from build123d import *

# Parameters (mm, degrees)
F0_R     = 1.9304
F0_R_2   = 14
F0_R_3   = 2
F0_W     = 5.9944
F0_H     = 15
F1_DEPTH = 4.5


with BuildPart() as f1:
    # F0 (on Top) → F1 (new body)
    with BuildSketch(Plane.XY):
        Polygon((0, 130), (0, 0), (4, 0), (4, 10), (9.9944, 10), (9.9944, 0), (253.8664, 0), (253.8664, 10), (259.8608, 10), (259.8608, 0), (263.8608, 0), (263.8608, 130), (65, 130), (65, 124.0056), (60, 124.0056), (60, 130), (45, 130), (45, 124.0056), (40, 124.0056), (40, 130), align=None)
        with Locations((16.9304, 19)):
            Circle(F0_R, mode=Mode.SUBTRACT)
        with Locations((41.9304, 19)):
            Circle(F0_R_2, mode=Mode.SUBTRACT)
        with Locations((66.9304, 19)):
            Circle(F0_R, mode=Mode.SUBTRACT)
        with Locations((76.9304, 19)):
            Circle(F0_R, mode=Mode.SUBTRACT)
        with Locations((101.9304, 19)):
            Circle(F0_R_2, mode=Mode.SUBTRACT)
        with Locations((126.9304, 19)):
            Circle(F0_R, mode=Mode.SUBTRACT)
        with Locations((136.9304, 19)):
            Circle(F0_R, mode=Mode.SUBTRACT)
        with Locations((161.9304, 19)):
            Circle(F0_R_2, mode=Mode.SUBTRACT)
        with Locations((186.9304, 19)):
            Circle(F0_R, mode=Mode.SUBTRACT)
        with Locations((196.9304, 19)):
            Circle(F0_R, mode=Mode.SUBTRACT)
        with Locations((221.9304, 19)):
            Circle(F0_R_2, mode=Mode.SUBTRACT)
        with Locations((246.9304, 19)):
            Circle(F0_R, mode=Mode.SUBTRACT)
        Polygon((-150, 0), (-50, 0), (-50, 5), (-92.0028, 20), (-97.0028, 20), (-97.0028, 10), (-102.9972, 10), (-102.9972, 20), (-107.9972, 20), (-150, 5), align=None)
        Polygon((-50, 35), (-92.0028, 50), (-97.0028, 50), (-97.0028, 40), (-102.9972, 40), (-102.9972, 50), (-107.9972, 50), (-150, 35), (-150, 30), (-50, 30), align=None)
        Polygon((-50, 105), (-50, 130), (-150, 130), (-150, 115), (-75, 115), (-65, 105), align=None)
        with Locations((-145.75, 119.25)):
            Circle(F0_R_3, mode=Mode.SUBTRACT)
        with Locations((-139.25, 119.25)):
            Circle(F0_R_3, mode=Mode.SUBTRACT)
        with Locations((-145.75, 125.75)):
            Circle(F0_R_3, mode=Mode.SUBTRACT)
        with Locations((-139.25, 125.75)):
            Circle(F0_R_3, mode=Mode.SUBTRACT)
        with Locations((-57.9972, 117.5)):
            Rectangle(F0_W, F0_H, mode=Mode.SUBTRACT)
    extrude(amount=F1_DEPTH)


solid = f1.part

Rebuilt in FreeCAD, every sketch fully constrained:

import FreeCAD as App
import Part
import Sketcher
from FreeCAD import Vector


def add_polygon(sketch, points):
    """Adds a closed chain of lines whose ends are joined by coincident constraints."""
    first, n = sketch.GeometryCount, len(points)
    for a, b in zip(points, points[1:] + points[:1]):
        sketch.addGeometry(Part.LineSegment(App.Vector(*a, 0), App.Vector(*b, 0)), False)
    for i in range(n):
        sketch.addConstraint(Sketcher.Constraint("Coincident", first + i, 2, first + (i + 1) % n, 1))

doc = App.newDocument("Part")
body = doc.addObject("PartDesign::Body", "Body")
body.AllowCompound = True

# Sketch on XY plane
sketch1 = doc.addObject("Sketcher::SketchObject", "Sketch")
body.addObject(sketch1)
sketch1.AttachmentSupport = (doc.XY_Plane, [""])
sketch1.MapMode = "FlatFace"
add_polygon(sketch1, [(0, 130), (0, 0), (4, 0), (4, 10), (10, 10), (10, 0), (253.9, 0), (253.9, 10), (259.9, 10), (259.9, 0), (263.9, 0), (263.9, 130), (65, 130), (65, 124), (60, 124), (60, 130), (45, 130), (45, 124), (40, 124), (40, 130)])  # lines 0-19
sketch1.addGeometry(Part.Circle(Vector(16.9, 19, 0), Vector(0, 0, 1), 1.9), False)  # 20
sketch1.addGeometry(Part.Circle(Vector(41.9, 19, 0), Vector(0, 0, 1), 14), False)  # 21
sketch1.addGeometry(Part.Circle(Vector(66.9, 19, 0), Vector(0, 0, 1), 1.9), False)  # 22
sketch1.addGeometry(Part.Circle(Vector(76.9, 19, 0), Vector(0, 0, 1), 1.9), False)  # 23
sketch1.addGeometry(Part.Circle(Vector(101.9, 19, 0), Vector(0, 0, 1), 14), False)  # 24
sketch1.addGeometry(Part.Circle(Vector(126.9, 19, 0), Vector(0, 0, 1), 1.9), False)  # 25
sketch1.addGeometry(Part.Circle(Vector(136.9, 19, 0), Vector(0, 0, 1), 1.9), False)  # 26
sketch1.addGeometry(Part.Circle(Vector(161.9, 19, 0), Vector(0, 0, 1), 14), False)  # 27
sketch1.addGeometry(Part.Circle(Vector(186.9, 19, 0), Vector(0, 0, 1), 1.9), False)  # 28
sketch1.addGeometry(Part.Circle(Vector(196.9, 19, 0), Vector(0, 0, 1), 1.9), False)  # 29
sketch1.addGeometry(Part.Circle(Vector(221.9, 19, 0), Vector(0, 0, 1), 14), False)  # 30
sketch1.addGeometry(Part.Circle(Vector(246.9, 19, 0), Vector(0, 0, 1), 1.9), False)  # 31
add_polygon(sketch1, [(-150, 0), (-50, 0), (-50, 5), (-92, 20), (-97, 20), (-97, 10), (-103, 10), (-103, 20), (-108, 20), (-150, 5)])  # lines 32-41
add_polygon(sketch1, [(-50, 35), (-92, 50), (-97, 50), (-97, 40), (-103, 40), (-103, 50), (-108, 50), (-150, 35), (-150, 30), (-50, 30)])  # lines 42-51
add_polygon(sketch1, [(-50, 105), (-50, 130), (-150, 130), (-150, 115), (-75, 115), (-65, 105)])  # lines 52-57
add_polygon(sketch1, [(-55, 110), (-61, 110), (-61, 125), (-55, 125)])  # lines 58-61
sketch1.addGeometry(Part.Circle(Vector(-145.8, 119.2, 0), Vector(0, 0, 1), 2), False)  # 62
sketch1.addGeometry(Part.Circle(Vector(-139.2, 119.2, 0), Vector(0, 0, 1), 2), False)  # 63
sketch1.addGeometry(Part.Circle(Vector(-145.8, 125.8, 0), Vector(0, 0, 1), 2), False)  # 64
sketch1.addGeometry(Part.Circle(Vector(-139.2, 125.8, 0), Vector(0, 0, 1), 2), False)  # 65
sketch1.addConstraint(Sketcher.Constraint("Vertical", 0))
sketch1.addConstraint(Sketcher.Constraint("Horizontal", 1))
sketch1.addConstraint(Sketcher.Constraint("Vertical", 2))
sketch1.addConstraint(Sketcher.Constraint("Horizontal", 3))
sketch1.addConstraint(Sketcher.Constraint("Vertical", 4))
sketch1.addConstraint(Sketcher.Constraint("Horizontal", 5))
sketch1.addConstraint(Sketcher.Constraint("Vertical", 6))
sketch1.addConstraint(Sketcher.Constraint("Horizontal", 7))
sketch1.addConstraint(Sketcher.Constraint("Vertical", 8))
sketch1.addConstraint(Sketcher.Constraint("Horizontal", 9))
sketch1.addConstraint(Sketcher.Constraint("Vertical", 10))
sketch1.addConstraint(Sketcher.Constraint("Horizontal", 11))
sketch1.addConstraint(Sketcher.Constraint("Vertical", 12))
sketch1.addConstraint(Sketcher.Constraint("Horizontal", 13))
sketch1.addConstraint(Sketcher.Constraint("Vertical", 14))
sketch1.addConstraint(Sketcher.Constraint("Horizontal", 15))
sketch1.addConstraint(Sketcher.Constraint("Vertical", 16))
sketch1.addConstraint(Sketcher.Constraint("Horizontal", 17))
sketch1.addConstraint(Sketcher.Constraint("Vertical", 18))
sketch1.addConstraint(Sketcher.Constraint("Horizontal", 19))
sketch1.addConstraint(Sketcher.Constraint("Horizontal", 32))
sketch1.addConstraint(Sketcher.Constraint("Vertical", 33))
sketch1.addConstraint(Sketcher.Constraint("Horizontal", 35))
sketch1.addConstraint(Sketcher.Constraint("Vertical", 36))
sketch1.addConstraint(Sketcher.Constraint("Horizontal", 37))
sketch1.addConstraint(Sketcher.Constraint("Vertical", 38))
sketch1.addConstraint(Sketcher.Constraint("Horizontal", 39))
sketch1.addConstraint(Sketcher.Constraint("Vertical", 41))
sketch1.addConstraint(Sketcher.Constraint("Horizontal", 43))
sketch1.addConstraint(Sketcher.Constraint("Vertical", 44))
sketch1.addConstraint(Sketcher.Constraint("Horizontal", 45))
sketch1.addConstraint(Sketcher.Constraint("Vertical", 46))
sketch1.addConstraint(Sketcher.Constraint("Horizontal", 47))
sketch1.addConstraint(Sketcher.Constraint("Vertical", 49))
sketch1.addConstraint(Sketcher.Constraint("Horizontal", 50))
sketch1.addConstraint(Sketcher.Constraint("Vertical", 51))
sketch1.addConstraint(Sketcher.Constraint("Vertical", 52))
sketch1.addConstraint(Sketcher.Constraint("Horizontal", 53))
sketch1.addConstraint(Sketcher.Constraint("Vertical", 54))
sketch1.addConstraint(Sketcher.Constraint("Horizontal", 55))
sketch1.addConstraint(Sketcher.Constraint("Horizontal", 57))
sketch1.addConstraint(Sketcher.Constraint("Horizontal", 58))
sketch1.addConstraint(Sketcher.Constraint("Vertical", 59))
sketch1.addConstraint(Sketcher.Constraint("Horizontal", 60))
sketch1.addConstraint(Sketcher.Constraint("Vertical", 61))
sketch1.addConstraint(Sketcher.Constraint("Coincident", 0, 2, -1, 1))
sketch1.addConstraint(Sketcher.Constraint("Equal", 20, 22))
sketch1.addConstraint(Sketcher.Constraint("Equal", 22, 23))
sketch1.addConstraint(Sketcher.Constraint("Equal", 21, 24))
sketch1.addConstraint(Sketcher.Constraint("Equal", 23, 25))
sketch1.addConstraint(Sketcher.Constraint("Equal", 25, 26))
sketch1.addConstraint(Sketcher.Constraint("Equal", 24, 27))
sketch1.addConstraint(Sketcher.Constraint("Equal", 26, 28))
sketch1.addConstraint(Sketcher.Constraint("Equal", 28, 29))
sketch1.addConstraint(Sketcher.Constraint("Equal", 27, 30))
sketch1.addConstraint(Sketcher.Constraint("Equal", 29, 31))
sketch1.addConstraint(Sketcher.Constraint("Equal", 62, 63))
sketch1.addConstraint(Sketcher.Constraint("Equal", 63, 64))
sketch1.addConstraint(Sketcher.Constraint("Equal", 64, 65))
sketch1.addConstraint(Sketcher.Constraint("PointOnObject", 4, 2, -1))
sketch1.addConstraint(Sketcher.Constraint("PointOnObject", 8, 2, -1))
sketch1.addConstraint(Sketcher.Constraint("PointOnObject", 32, 2, -1))
sketch1.addConstraint(Sketcher.Constraint("Parallel", 34, 42))
sketch1.addConstraint(Sketcher.Constraint("Parallel", 40, 48))
sketch1.addConstraint(Sketcher.Constraint("Horizontal", 20, 3, 21, 3))
sketch1.addConstraint(Sketcher.Constraint("Horizontal", 21, 3, 22, 3))
sketch1.addConstraint(Sketcher.Constraint("Horizontal", 22, 3, 23, 3))
sketch1.addConstraint(Sketcher.Constraint("Horizontal", 23, 3, 24, 3))
sketch1.addConstraint(Sketcher.Constraint("Horizontal", 24, 3, 25, 3))
sketch1.addConstraint(Sketcher.Constraint("Horizontal", 25, 3, 26, 3))
sketch1.addConstraint(Sketcher.Constraint("Horizontal", 26, 3, 27, 3))
sketch1.addConstraint(Sketcher.Constraint("Horizontal", 27, 3, 28, 3))
sketch1.addConstraint(Sketcher.Constraint("Horizontal", 28, 3, 29, 3))
sketch1.addConstraint(Sketcher.Constraint("Horizontal", 29, 3, 30, 3))
sketch1.addConstraint(Sketcher.Constraint("Horizontal", 30, 3, 31, 3))
sketch1.addConstraint(Sketcher.Constraint("Horizontal", 62, 3, 63, 3))
sketch1.addConstraint(Sketcher.Constraint("Horizontal", 64, 3, 65, 3))
sketch1.addConstraint(Sketcher.Constraint("Horizontal", 3, 2, 6, 2))
sketch1.addConstraint(Sketcher.Constraint("Horizontal", 11, 2, 14, 2))
sketch1.addConstraint(Sketcher.Constraint("Horizontal", 13, 2, 16, 2))
sketch1.addConstraint(Sketcher.Constraint("Horizontal", 15, 2, 18, 2))
sketch1.addConstraint(Sketcher.Constraint("Horizontal", 7, 2, 36, 2))
sketch1.addConstraint(Sketcher.Constraint("Horizontal", 35, 2, 38, 2))
sketch1.addConstraint(Sketcher.Constraint("Horizontal", 33, 2, 40, 2))
sketch1.addConstraint(Sketcher.Constraint("Horizontal", 43, 2, 46, 2))
sketch1.addConstraint(Sketcher.Constraint("Horizontal", 48, 2, 51, 2))
sketch1.addConstraint(Sketcher.Constraint("Horizontal", 19, 2, 52, 2))
sketch1.addConstraint(Sketcher.Constraint("Vertical", 62, 3, 64, 3))
sketch1.addConstraint(Sketcher.Constraint("Vertical", 63, 3, 65, 3))
sketch1.addConstraint(Sketcher.Constraint("Vertical", 34, 2, 42, 2))
sketch1.addConstraint(Sketcher.Constraint("Vertical", 36, 2, 43, 2))
sketch1.addConstraint(Sketcher.Constraint("Vertical", 38, 2, 45, 2))
sketch1.addConstraint(Sketcher.Constraint("Vertical", 39, 2, 47, 2))
sketch1.addConstraint(Sketcher.Constraint("Vertical", 41, 2, 48, 2))
sketch1.addConstraint(Sketcher.Constraint("Vertical", 51, 2, 52, 2))
sketch1.addConstraint(Sketcher.Constraint("Vertical", 49, 2, 53, 2))
sketch1.addConstraint(Sketcher.Constraint("Equal", 3, 7))
sketch1.addConstraint(Sketcher.Constraint("Equal", 1, 9))
sketch1.addConstraint(Sketcher.Constraint("Equal", 13, 17))
sketch1.addConstraint(Sketcher.Constraint("Equal", 17, 35))
sketch1.addConstraint(Sketcher.Constraint("Equal", 7, 37))
sketch1.addConstraint(Sketcher.Constraint("Equal", 35, 39))
sketch1.addConstraint(Sketcher.Constraint("Equal", 15, 57))
sketch1.addConstraint(Sketcher.Constraint("Equal", 45, 58))
sketch1.addConstraint(Sketcher.Constraint("Equal", 60, 12))
sketch1.addConstraint(Sketcher.Constraint("Equal", 47, 33))
sketch1.addConstraint(Sketcher.Constraint("Equal", 8, 36))
sketch1.addConstraint(Sketcher.Constraint("Equal", 38, 44))
sketch1.addConstraint(Sketcher.Constraint("Equal", 41, 49))
sketch1.addConstraint(Sketcher.Constraint("Equal", 57, 54))
sketch1.addConstraint(Sketcher.Constraint("Equal", 54, 59))
sketch1.addConstraint(Sketcher.Constraint("Equal", 34, 40))
sketch1.addConstraint(Sketcher.Constraint("Diameter", 21, 28.0))
sketch1.addConstraint(Sketcher.Constraint("Diameter", 62, 4.0))
sketch1.addConstraint(Sketcher.Constraint("DistanceX", 1, 1, 1, 2, 4.0))
sketch1.addConstraint(Sketcher.Constraint("DistanceX", 13, 2, 13, 1, 5.0))
sketch1.addConstraint(Sketcher.Constraint("DistanceX", 15, 2, 15, 1, 15.0))
sketch1.addConstraint(Sketcher.Constraint("DistanceX", 19, 2, 19, 1, 40.0))
sketch1.addConstraint(Sketcher.Constraint("DistanceX", 32, 1, 32, 2, 100.0))
sketch1.addConstraint(Sketcher.Constraint("DistanceX", 55, 1, 55, 2, 75.0))
sketch1.addConstraint(Sketcher.Constraint("DistanceY", 0, 2, 0, 1, 130.0))
sketch1.addConstraint(Sketcher.Constraint("DistanceY", 2, 1, 2, 2, 10.0))
sketch1.addConstraint(Sketcher.Constraint("DistanceY", 52, 1, 52, 2, 25.0))
sketch1.addConstraint(Sketcher.Constraint("DistanceY", -1, 1, 20, 3, 19.0))
sketch1.addConstraint(Sketcher.Constraint("DistanceX", 32, 2, -1, 1, 50.0))
sketch1.addConstraint(Sketcher.Constraint("DistanceY", -1, 1, 42, 2, 50.0))
sketch1.addConstraint(Sketcher.Constraint("DistanceY", -1, 1, 58, 2, 110.0))
sketch1.addConstraint(Sketcher.Constraint("DistanceX", 60, 2, -1, 1, 55.0))
sketch1.addConstraint(Sketcher.Constraint("Diameter", 20, 3.8608))
sketch1.addConstraint(Sketcher.Constraint("DistanceX", 5, 1, 5, 2, 243.872))
sketch1.addConstraint(Sketcher.Constraint("DistanceX", 62, 3, -1, 1, 145.75))
sketch1.addConstraint(Sketcher.Constraint("DistanceY", -1, 1, 62, 3, 119.25))
sketch1.addConstraint(Sketcher.Constraint("DistanceX", 63, 3, -1, 1, 139.25))
sketch1.addConstraint(Sketcher.Constraint("DistanceY", -1, 1, 64, 3, 125.75))
sketch1.addConstraint(Sketcher.Constraint("DistanceX", 3, 1, 3, 2, 5.9944))
sketch1.addConstraint(Sketcher.Constraint("DistanceX", -1, 1, 20, 3, 16.9304))
sketch1.addConstraint(Sketcher.Constraint("DistanceX", -1, 1, 21, 3, 41.9304))
sketch1.addConstraint(Sketcher.Constraint("DistanceX", -1, 1, 22, 3, 66.9304))
sketch1.addConstraint(Sketcher.Constraint("DistanceX", -1, 1, 23, 3, 76.9304))
sketch1.addConstraint(Sketcher.Constraint("DistanceX", -1, 1, 24, 3, 101.9304))
sketch1.addConstraint(Sketcher.Constraint("DistanceX", -1, 1, 25, 3, 126.9304))
sketch1.addConstraint(Sketcher.Constraint("DistanceX", -1, 1, 26, 3, 136.9304))
sketch1.addConstraint(Sketcher.Constraint("DistanceX", -1, 1, 27, 3, 161.9304))
sketch1.addConstraint(Sketcher.Constraint("DistanceX", -1, 1, 28, 3, 186.9304))
sketch1.addConstraint(Sketcher.Constraint("DistanceX", -1, 1, 29, 3, 196.9304))
sketch1.addConstraint(Sketcher.Constraint("DistanceX", -1, 1, 30, 3, 221.9304))
sketch1.addConstraint(Sketcher.Constraint("DistanceX", -1, 1, 31, 3, 246.9304))
pad1 = doc.addObject("PartDesign::Pad", "Pad")
body.addObject(pad1)
pad1.Profile = sketch1
pad1.Length = 4.5

doc.recompute()
